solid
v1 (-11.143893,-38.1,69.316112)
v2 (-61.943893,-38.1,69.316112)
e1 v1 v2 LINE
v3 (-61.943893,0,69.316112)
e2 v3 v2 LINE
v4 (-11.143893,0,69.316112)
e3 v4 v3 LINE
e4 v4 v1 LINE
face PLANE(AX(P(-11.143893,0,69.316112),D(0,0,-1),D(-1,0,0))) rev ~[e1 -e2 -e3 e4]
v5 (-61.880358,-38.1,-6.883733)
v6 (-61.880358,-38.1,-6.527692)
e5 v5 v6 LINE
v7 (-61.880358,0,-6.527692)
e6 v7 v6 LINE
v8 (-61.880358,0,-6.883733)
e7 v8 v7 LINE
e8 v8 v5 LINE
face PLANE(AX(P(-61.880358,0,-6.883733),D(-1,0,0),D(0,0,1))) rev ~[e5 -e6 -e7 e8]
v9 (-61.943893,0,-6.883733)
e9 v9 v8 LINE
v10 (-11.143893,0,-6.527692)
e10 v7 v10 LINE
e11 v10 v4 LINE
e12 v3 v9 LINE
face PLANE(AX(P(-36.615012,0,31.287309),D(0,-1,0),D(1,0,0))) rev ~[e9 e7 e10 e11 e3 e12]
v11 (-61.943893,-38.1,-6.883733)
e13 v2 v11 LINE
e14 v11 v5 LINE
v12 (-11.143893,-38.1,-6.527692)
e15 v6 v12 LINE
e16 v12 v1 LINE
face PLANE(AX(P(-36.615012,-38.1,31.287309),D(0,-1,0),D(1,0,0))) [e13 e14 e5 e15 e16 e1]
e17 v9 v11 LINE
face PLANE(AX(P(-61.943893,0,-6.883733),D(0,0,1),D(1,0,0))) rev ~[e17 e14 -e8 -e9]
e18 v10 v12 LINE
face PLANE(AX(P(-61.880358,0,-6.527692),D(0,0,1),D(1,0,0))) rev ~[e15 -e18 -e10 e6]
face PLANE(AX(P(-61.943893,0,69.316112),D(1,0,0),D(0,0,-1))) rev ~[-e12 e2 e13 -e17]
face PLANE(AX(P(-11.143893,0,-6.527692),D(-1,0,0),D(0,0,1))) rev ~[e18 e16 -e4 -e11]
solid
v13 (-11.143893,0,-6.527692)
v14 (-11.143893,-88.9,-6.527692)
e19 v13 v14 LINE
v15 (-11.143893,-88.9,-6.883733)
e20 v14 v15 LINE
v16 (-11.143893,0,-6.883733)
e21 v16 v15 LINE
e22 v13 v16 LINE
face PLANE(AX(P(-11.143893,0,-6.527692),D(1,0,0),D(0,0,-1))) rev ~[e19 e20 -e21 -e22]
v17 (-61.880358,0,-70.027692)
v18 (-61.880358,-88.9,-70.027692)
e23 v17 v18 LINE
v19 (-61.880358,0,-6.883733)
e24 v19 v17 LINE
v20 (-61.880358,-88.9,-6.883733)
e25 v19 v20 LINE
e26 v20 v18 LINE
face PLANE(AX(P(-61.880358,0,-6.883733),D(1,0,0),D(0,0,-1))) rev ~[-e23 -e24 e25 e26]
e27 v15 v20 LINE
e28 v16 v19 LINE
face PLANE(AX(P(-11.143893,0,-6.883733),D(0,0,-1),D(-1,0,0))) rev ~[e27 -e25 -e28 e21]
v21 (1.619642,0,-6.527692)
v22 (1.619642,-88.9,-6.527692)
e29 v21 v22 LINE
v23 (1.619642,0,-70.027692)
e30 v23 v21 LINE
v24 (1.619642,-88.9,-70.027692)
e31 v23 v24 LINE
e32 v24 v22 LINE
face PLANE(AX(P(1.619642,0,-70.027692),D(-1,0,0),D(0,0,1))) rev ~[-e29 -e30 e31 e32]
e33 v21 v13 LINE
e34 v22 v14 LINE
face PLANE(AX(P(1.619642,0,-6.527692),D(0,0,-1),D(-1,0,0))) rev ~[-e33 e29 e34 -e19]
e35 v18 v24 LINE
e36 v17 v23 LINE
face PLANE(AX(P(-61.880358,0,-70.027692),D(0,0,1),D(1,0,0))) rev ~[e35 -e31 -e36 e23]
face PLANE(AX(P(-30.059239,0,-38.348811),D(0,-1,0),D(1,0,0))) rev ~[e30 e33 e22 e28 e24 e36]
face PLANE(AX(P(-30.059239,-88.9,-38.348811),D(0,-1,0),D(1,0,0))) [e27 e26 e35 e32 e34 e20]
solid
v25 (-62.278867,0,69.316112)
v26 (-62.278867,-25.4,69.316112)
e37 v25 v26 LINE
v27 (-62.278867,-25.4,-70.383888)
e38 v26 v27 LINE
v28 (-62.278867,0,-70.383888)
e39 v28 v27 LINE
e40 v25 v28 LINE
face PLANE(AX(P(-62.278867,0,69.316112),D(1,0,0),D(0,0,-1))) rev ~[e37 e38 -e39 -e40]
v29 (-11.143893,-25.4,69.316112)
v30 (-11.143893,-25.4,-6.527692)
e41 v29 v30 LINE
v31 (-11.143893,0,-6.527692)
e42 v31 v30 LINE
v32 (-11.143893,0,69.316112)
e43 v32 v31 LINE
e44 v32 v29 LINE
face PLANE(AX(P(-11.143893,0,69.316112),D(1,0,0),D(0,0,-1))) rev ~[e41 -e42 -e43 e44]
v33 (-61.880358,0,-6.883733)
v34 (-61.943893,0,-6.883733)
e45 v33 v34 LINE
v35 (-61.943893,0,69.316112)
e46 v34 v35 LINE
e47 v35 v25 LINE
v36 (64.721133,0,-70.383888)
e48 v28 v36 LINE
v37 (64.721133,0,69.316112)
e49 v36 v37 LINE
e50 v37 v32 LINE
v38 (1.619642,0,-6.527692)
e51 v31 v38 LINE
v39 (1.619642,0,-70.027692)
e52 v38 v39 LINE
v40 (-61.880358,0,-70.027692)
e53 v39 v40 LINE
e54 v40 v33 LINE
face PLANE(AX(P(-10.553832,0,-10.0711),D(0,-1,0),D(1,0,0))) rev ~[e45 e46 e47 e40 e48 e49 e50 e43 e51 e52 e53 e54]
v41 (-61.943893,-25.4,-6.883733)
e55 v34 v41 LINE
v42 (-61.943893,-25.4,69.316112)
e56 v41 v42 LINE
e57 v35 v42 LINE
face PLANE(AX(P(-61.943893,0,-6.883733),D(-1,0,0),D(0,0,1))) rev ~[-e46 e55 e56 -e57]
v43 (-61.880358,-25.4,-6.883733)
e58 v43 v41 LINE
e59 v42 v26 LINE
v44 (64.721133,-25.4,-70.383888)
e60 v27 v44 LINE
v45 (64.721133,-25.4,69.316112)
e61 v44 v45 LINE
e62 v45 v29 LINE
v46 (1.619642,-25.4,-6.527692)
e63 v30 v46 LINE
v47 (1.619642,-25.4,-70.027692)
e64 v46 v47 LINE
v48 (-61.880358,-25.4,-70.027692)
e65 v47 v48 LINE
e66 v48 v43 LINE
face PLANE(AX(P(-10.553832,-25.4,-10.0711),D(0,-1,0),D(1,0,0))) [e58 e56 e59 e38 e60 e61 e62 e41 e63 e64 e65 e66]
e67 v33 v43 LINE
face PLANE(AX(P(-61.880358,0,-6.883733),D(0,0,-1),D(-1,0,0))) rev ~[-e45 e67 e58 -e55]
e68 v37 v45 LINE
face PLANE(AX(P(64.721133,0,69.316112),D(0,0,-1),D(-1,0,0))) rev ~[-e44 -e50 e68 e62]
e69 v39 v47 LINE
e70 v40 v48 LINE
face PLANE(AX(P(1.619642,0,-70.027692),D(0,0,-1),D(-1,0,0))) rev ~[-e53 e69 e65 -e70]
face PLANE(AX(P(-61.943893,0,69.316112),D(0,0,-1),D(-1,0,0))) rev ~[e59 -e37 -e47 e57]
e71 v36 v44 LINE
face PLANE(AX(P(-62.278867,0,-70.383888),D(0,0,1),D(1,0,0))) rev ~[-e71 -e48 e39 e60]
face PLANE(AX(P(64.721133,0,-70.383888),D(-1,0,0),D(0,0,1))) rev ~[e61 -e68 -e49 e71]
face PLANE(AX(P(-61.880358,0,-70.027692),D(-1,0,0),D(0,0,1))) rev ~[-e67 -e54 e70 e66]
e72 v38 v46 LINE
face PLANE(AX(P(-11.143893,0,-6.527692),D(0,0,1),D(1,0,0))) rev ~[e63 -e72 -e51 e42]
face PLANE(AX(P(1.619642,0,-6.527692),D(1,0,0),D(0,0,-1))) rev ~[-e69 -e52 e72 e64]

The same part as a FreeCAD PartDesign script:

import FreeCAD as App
import Part
import Sketcher

V = App.Vector
Q = App.Units.Quantity

doc = App.newDocument("Part")
body = doc.addObject("PartDesign::Body", "Body")

sketch1 = body.newObject("Sketcher::SketchObject", "Sketch")
sketch1.AttachmentSupport = (doc.getObject("XZ_Plane"), [""])
sketch1.MapMode = "FlatFace"
sketch1.addGeometry(Part.LineSegment(V(1.62, -6.53, 0), V(-11.14, -6.53, 0)), False)
sketch1.addGeometry(Part.LineSegment(V(-11.14, -6.53, 0), V(-11.14, -6.88, 0)), False)
sketch1.addGeometry(Part.LineSegment(V(-11.14, -6.88, 0), V(-61.88, -6.88, 0)), False)
sketch1.addGeometry(Part.LineSegment(V(-61.88, -6.88, 0), V(-61.88, -70.03, 0)), False)
sketch1.addGeometry(Part.LineSegment(V(-61.88, -70.03, 0), V(1.62, -70.03, 0)), False)
sketch1.addGeometry(Part.LineSegment(V(1.62, -70.03, 0), V(1.62, -6.53, 0)), False)
sketch1.addConstraint(Sketcher.Constraint("Coincident", 0, 2, 1, 1))
sketch1.addConstraint(Sketcher.Constraint("Coincident", 1, 2, 2, 1))
sketch1.addConstraint(Sketcher.Constraint("Coincident", 2, 2, 3, 1))
sketch1.addConstraint(Sketcher.Constraint("Coincident", 3, 2, 4, 1))
sketch1.addConstraint(Sketcher.Constraint("Coincident", 4, 2, 5, 1))
sketch1.addConstraint(Sketcher.Constraint("Coincident", 5, 2, 0, 1))
sketch1.addConstraint(Sketcher.Constraint("Horizontal", 0))
sketch1.addConstraint(Sketcher.Constraint("Vertical", 1))
sketch1.addConstraint(Sketcher.Constraint("Horizontal", 2))
sketch1.addConstraint(Sketcher.Constraint("Vertical", 3))
sketch1.addConstraint(Sketcher.Constraint("Horizontal", 4))
sketch1.addConstraint(Sketcher.Constraint("Vertical", 5))
sketch1.addConstraint(Sketcher.Constraint("Equal", 4, 5))
sketch1.addConstraint(Sketcher.Constraint("DistanceX", 4, 1, 4, 2, Q("2.5 in")))
sketch1.addConstraint(Sketcher.Constraint("DistanceY", 1, 2, 1, 1, Q("0.356041 mm")))
sketch1.addConstraint(Sketcher.Constraint("DistanceX", 0, 2, 0, 1, Q("12.763535 mm")))
sketch1.addConstraint(Sketcher.Constraint("DistanceY", 3, 2, -1, 1, Q("70.027692 mm")))
sketch1.addConstraint(Sketcher.Constraint("DistanceX", 0, 2, -1, 1, Q("11.143893 mm")))
pad1 = body.newObject("PartDesign::Pad", "Pad")
pad1.Profile = sketch1
pad1.Length = Q("3.5 in")
body2 = doc.addObject("PartDesign::Body", "Body001")

sketch2 = body2.newObject("Sketcher::SketchObject", "Sketch001")
sketch2.AttachmentSupport = (doc.getObject("XZ_Plane001"), [""])
sketch2.MapMode = "FlatFace"
sketch2.addGeometry(Part.LineSegment(V(-61.88, -6.88, 0), V(-61.88, -6.53, 0)), False)
sketch2.addGeometry(Part.LineSegment(V(-61.88, -6.53, 0), V(-11.14, -6.53, 0)), False)
sketch2.addGeometry(Part.LineSegment(V(-11.14, -6.53, 0), V(-11.14, 69.32, 0)), False)
sketch2.addGeometry(Part.LineSegment(V(-11.14, 69.32, 0), V(-61.94, 69.32, 0)), False)
sketch2.addGeometry(Part.LineSegment(V(-61.94, 69.32, 0), V(-61.94, -6.88, 0)), False)
sketch2.addGeometry(Part.LineSegment(V(-61.94, -6.88, 0), V(-61.88, -6.88, 0)), False)
sketch2.addConstraint(Sketcher.Constraint("Coincident", 0, 2, 1, 1))
sketch2.addConstraint(Sketcher.Constraint("Coincident", 1, 2, 2, 1))
sketch2.addConstraint(Sketcher.Constraint("Coincident", 2, 2, 3, 1))
sketch2.addConstraint(Sketcher.Constraint("Coincident", 3, 2, 4, 1))
sketch2.addConstraint(Sketcher.Constraint("Coincident", 4, 2, 5, 1))
sketch2.addConstraint(Sketcher.Constraint("Coincident", 5, 2, 0, 1))
sketch2.addConstraint(Sketcher.Constraint("Vertical", 0))
sketch2.addConstraint(Sketcher.Constraint("Horizontal", 1))
sketch2.addConstraint(Sketcher.Constraint("Vertical", 2))
sketch2.addConstraint(Sketcher.Constraint("Horizontal", 3))
sketch2.addConstraint(Sketcher.Constraint("Vertical", 4))
sketch2.addConstraint(Sketcher.Constraint("Horizontal", 5))
sketch2.addConstraint(Sketcher.Constraint("DistanceX", 3, 2, 3, 1, Q("2 in")))
sketch2.addConstraint(Sketcher.Constraint("DistanceY", 0, 1, 0, 2, Q("0.356041 mm")))
sketch2.addConstraint(Sketcher.Constraint("DistanceX", 1, 1, 1, 2, Q("50.736465 mm")))
sketch2.addConstraint(Sketcher.Constraint("DistanceY", 2, 1, 2, 2, Q("75.843804 mm")))
sketch2.addConstraint(Sketcher.Constraint("DistanceX", 0, 2, -1, 1, Q("61.880358 mm")))
sketch2.addConstraint(Sketcher.Constraint("DistanceY", 0, 2, -1, 1, Q("6.527692 mm")))
pad2 = body2.newObject("PartDesign::Pad", "Pad001")
pad2.Profile = sketch2
pad2.Length = Q("1.5 in")
body3 = doc.addObject("PartDesign::Body", "Body002")

sketch3 = body3.newObject("Sketcher::SketchObject", "Sketch002")
sketch3.AttachmentSupport = (doc.getObject("XZ_Plane002"), [""])
sketch3.MapMode = "FlatFace"
sketch3.addGeometry(Part.LineSegment(V(-11.14, 69.32, 0), V(-11.14, -6.53, 0)), False)
sketch3.addGeometry(Part.LineSegment(V(-11.14, -6.53, 0), V(1.62, -6.53, 0)), False)
sketch3.addGeometry(Part.LineSegment(V(1.62, -6.53, 0), V(1.62, -70.03, 0)), False)
sketch3.addGeometry(Part.LineSegment(V(1.62, -70.03, 0), V(-61.88, -70.03, 0)), False)
sketch3.addGeometry(Part.LineSegment(V(-61.88, -70.03, 0), V(-61.88, -6.88, 0)), False)
sketch3.addGeometry(Part.LineSegment(V(-61.88, -6.88, 0), V(-61.94, -6.88, 0)), False)
sketch3.addGeometry(Part.LineSegment(V(-61.94, -6.88, 0), V(-61.94, 69.32, 0)), False)
sketch3.addGeometry(Part.LineSegment(V(-61.94, 69.32, 0), V(-62.28, 69.32, 0)), False)
sketch3.addGeometry(Part.LineSegment(V(-62.28, 69.32, 0), V(-62.28, -70.38, 0)), False)
sketch3.addGeometry(Part.LineSegment(V(-62.28, -70.38, 0), V(64.72, -70.38, 0)), False)
sketch3.addGeometry(Part.LineSegment(V(64.72, -70.38, 0), V(64.72, 69.32, 0)), False)
sketch3.addGeometry(Part.LineSegment(V(64.72, 69.32, 0), V(-11.14, 69.32, 0)), False)
sketch3.addConstraint(Sketcher.Constraint("Coincident", 0, 2, 1, 1))
sketch3.addConstraint(Sketcher.Constraint("Coincident", 1, 2, 2, 1))
sketch3.addConstraint(Sketcher.Constraint("Coincident", 2, 2, 3, 1))
sketch3.addConstraint(Sketcher.Constraint("Coincident", 3, 2, 4, 1))
sketch3.addConstraint(Sketcher.Constraint("Coincident", 4, 2, 5, 1))
sketch3.addConstraint(Sketcher.Constraint("Coincident", 5, 2, 6, 1))
sketch3.addConstraint(Sketcher.Constraint("Coincident", 6, 2, 7, 1))
sketch3.addConstraint(Sketcher.Constraint("Coincident", 7, 2, 8, 1))
sketch3.addConstraint(Sketcher.Constraint("Coincident", 8, 2, 9, 1))
sketch3.addConstraint(Sketcher.Constraint("Coincident", 9, 2, 10, 1))
sketch3.addConstraint(Sketcher.Constraint("Coincident", 10, 2, 11, 1))
sketch3.addConstraint(Sketcher.Constraint("Coincident", 11, 2, 0, 1))
sketch3.addConstraint(Sketcher.Constraint("Vertical", 0))
sketch3.addConstraint(Sketcher.Constraint("Horizontal", 1))
sketch3.addConstraint(Sketcher.Constraint("Vertical", 2))
sketch3.addConstraint(Sketcher.Constraint("Horizontal", 3))
sketch3.addConstraint(Sketcher.Constraint("Vertical", 4))
sketch3.addConstraint(Sketcher.Constraint("Horizontal", 5))
sketch3.addConstraint(Sketcher.Constraint("Vertical", 6))
sketch3.addConstraint(Sketcher.Constraint("Horizontal", 7))
sketch3.addConstraint(Sketcher.Constraint("Vertical", 8))
sketch3.addConstraint(Sketcher.Constraint("Horizontal", 9))
sketch3.addConstraint(Sketcher.Constraint("Vertical", 10))
sketch3.addConstraint(Sketcher.Constraint("Horizontal", 11))
sketch3.addConstraint(Sketcher.Constraint("Horizontal", 7, 2, 10, 2))
sketch3.addConstraint(Sketcher.Constraint("Equal", 3, 2))
sketch3.addConstraint(Sketcher.Constraint("DistanceX", 9, 1, 9, 2, Q("5 in")))
sketch3.addConstraint(Sketcher.Constraint("DistanceX", 3, 2, 3, 1, Q("2.5 in")))
sketch3.addConstraint(Sketcher.Constraint("DistanceY", 8, 2, 8, 1, Q("5.5 in")))
sketch3.addConstraint(Sketcher.Constraint("DistanceX", 5, 2, 0, 2, Q("2 in")))
sketch3.addConstraint(Sketcher.Constraint("DistanceY", 4, 1, 4, 2, Q("63.143959 mm")))
sketch3.addConstraint(Sketcher.Constraint("DistanceX", 1, 1, 1, 2, Q("12.763535 mm")))
sketch3.addConstraint(Sketcher.Constraint("DistanceX", 7, 2, 7, 1, Q("0.334974 mm")))
sketch3.addConstraint(Sketcher.Constraint("DistanceY", 0, 2, 0, 1, Q("75.843804 mm")))
sketch3.addConstraint(Sketcher.Constraint("DistanceY", 2, 2, -1, 1, Q("70.027692 mm")))
sketch3.addConstraint(Sketcher.Constraint("DistanceX", 0, 2, -1, 1, Q("11.143893 mm")))
pad3 = body3.newObject("PartDesign::Pad", "Pad002")
pad3.Profile = sketch3
pad3.Length = Q("1 in")

doc.recompute()
